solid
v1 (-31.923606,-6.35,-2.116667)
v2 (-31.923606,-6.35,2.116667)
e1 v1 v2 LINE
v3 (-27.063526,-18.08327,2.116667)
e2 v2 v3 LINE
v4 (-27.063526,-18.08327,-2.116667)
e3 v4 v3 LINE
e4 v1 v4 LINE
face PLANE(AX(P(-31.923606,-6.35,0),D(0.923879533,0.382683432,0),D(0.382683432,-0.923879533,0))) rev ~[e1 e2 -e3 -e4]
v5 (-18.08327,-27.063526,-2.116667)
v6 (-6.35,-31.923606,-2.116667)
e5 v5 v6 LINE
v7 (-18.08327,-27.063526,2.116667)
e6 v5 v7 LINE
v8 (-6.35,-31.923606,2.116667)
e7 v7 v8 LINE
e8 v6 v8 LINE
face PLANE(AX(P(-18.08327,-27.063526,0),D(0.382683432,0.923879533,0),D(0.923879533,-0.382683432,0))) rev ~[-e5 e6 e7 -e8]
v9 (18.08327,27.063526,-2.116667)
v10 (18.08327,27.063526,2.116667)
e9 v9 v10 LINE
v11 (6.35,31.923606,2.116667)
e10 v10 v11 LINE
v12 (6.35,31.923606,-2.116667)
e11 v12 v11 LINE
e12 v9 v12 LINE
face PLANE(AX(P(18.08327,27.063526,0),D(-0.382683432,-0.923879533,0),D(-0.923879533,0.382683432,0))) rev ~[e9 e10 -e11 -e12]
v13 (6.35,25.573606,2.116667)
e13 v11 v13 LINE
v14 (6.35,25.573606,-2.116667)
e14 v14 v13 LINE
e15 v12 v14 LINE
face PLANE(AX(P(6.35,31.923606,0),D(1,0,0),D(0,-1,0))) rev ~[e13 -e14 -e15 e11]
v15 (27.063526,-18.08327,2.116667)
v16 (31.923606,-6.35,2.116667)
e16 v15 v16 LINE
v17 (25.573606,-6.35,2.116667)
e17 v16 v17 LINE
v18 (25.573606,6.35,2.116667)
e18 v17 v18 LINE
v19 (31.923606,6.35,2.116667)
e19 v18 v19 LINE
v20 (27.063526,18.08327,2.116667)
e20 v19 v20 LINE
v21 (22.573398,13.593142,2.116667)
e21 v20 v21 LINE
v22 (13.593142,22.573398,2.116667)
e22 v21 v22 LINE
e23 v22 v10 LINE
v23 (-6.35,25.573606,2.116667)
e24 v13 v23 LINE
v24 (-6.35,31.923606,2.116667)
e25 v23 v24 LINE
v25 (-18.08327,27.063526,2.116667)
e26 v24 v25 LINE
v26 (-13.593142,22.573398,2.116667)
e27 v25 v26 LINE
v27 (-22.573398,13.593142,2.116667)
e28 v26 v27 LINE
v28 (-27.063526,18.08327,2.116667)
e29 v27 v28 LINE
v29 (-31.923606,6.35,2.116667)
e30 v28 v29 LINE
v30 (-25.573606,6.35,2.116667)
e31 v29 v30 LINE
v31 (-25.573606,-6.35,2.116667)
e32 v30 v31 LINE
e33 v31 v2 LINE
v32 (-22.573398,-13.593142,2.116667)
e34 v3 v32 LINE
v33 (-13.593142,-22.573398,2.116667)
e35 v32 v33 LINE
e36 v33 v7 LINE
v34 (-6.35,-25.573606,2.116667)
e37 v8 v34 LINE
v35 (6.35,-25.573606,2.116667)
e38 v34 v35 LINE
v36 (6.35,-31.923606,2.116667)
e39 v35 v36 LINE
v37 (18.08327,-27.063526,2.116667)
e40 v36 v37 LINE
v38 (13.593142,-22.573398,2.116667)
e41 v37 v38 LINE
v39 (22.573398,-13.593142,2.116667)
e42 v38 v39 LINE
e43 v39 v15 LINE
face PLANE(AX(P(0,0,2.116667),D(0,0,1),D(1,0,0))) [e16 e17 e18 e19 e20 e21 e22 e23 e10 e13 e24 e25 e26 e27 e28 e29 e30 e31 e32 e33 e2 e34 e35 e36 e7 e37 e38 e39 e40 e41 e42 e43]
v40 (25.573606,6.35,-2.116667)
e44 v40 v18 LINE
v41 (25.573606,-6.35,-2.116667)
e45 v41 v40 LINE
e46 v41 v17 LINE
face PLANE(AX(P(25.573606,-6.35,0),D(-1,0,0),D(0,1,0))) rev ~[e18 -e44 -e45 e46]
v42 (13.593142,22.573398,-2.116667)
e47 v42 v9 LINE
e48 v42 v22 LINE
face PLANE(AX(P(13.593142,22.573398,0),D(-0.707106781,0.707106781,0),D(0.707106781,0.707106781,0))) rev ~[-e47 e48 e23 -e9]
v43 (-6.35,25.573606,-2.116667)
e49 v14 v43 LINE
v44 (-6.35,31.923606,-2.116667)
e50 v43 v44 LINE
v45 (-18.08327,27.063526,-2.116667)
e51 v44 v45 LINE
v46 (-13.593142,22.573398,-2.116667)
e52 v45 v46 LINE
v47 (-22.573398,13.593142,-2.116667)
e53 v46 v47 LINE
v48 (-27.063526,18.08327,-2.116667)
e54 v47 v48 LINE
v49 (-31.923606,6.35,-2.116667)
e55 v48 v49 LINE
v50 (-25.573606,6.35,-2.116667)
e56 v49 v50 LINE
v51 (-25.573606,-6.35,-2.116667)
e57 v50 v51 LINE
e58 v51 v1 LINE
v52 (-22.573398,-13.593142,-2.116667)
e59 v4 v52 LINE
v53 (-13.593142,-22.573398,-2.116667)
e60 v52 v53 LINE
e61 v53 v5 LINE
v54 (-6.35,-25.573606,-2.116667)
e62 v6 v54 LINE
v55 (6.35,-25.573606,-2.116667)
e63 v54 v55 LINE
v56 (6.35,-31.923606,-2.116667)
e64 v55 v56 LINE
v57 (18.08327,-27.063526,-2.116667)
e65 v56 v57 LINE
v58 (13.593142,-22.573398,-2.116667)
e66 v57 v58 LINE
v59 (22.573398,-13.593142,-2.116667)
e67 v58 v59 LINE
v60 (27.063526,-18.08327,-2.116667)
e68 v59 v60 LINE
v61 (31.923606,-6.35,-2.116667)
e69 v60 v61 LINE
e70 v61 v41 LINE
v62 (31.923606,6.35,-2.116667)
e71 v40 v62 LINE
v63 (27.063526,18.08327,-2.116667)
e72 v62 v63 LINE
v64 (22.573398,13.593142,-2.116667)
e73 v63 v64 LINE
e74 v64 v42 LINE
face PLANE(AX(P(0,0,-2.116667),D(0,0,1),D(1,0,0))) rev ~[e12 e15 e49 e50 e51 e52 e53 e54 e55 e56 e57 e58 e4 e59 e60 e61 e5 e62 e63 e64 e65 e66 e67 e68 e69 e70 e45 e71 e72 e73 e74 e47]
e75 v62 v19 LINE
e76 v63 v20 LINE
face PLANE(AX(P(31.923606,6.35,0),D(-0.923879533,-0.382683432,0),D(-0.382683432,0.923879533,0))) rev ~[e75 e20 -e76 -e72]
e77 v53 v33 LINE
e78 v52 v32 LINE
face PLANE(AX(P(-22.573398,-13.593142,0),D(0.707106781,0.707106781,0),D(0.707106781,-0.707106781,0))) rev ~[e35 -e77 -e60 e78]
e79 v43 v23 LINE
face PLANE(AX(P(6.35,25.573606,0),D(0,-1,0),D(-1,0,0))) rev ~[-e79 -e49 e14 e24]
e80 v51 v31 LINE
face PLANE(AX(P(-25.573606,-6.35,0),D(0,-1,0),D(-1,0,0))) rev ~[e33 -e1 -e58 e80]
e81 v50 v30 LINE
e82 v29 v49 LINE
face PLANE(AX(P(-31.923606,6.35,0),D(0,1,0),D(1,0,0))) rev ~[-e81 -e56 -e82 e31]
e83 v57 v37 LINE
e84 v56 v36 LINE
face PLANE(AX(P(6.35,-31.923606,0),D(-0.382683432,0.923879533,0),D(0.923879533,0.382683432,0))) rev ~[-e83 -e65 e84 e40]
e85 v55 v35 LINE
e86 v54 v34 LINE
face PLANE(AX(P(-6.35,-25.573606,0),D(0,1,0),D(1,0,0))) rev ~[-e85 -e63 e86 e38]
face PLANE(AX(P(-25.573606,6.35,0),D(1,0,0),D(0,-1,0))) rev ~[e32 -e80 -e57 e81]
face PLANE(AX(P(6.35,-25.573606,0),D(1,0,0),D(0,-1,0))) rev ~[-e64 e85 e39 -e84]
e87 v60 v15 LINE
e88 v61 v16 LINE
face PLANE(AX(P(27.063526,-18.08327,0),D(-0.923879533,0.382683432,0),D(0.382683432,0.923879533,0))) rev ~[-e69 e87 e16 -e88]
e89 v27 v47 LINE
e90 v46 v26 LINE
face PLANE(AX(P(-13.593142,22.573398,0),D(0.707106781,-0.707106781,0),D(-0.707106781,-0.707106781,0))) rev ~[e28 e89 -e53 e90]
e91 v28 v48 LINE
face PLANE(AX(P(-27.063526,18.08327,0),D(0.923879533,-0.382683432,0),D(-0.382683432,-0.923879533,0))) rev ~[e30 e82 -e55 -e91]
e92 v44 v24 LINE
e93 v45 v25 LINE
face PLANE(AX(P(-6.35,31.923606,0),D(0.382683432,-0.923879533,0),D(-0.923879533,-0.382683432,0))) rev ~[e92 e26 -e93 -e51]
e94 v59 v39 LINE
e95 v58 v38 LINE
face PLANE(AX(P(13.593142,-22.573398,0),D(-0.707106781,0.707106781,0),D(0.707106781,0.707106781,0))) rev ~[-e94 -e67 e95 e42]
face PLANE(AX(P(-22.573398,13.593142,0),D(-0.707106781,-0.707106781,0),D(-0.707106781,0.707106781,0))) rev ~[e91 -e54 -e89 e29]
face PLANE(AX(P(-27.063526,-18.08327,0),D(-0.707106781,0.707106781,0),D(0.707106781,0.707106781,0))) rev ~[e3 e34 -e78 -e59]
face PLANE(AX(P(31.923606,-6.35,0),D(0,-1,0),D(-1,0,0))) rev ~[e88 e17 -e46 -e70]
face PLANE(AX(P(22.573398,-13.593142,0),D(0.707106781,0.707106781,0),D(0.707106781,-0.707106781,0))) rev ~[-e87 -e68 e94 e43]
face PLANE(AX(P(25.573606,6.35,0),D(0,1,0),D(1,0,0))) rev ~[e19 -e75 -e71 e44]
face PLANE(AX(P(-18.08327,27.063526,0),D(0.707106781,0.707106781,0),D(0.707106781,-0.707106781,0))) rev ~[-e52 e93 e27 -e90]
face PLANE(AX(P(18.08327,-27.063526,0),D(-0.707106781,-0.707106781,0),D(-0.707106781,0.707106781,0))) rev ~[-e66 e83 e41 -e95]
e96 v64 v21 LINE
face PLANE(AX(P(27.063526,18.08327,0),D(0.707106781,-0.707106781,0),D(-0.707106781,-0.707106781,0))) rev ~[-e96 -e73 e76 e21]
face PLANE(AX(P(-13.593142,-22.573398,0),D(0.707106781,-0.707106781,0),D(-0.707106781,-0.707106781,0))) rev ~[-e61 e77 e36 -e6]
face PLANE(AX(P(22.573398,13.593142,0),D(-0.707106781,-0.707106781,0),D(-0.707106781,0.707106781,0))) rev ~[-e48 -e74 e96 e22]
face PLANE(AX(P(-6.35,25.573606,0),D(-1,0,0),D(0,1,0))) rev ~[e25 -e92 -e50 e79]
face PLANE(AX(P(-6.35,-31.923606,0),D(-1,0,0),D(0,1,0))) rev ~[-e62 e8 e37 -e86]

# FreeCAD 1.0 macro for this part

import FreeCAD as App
import Part
import Sketcher
from FreeCAD import Vector
Q = App.Units.Quantity

doc = App.newDocument("Part")
body = doc.addObject("PartDesign::Body", "Body")

# Sketch on XY plane
sketch1 = body.newObject("Sketcher::SketchObject", "Sketch")
sketch1.AttachmentSupport = (doc.getObject("XY_Plane"), [""])
sketch1.MapMode = "FlatFace"
sketch1.addGeometry(Part.LineSegment(Vector(-31.923606, 6.35, 0), Vector(-25.573606, 6.35, 0)), False)
sketch1.addGeometry(Part.LineSegment(Vector(-25.573606, 6.35, 0), Vector(-25.573606, -6.35, 0)), False)
sketch1.addGeometry(Part.LineSegment(Vector(-25.573606, -6.35, 0), Vector(-31.923606, -6.35, 0)), False)
sketch1.addGeometry(Part.LineSegment(Vector(-31.923606, -6.35, 0), Vector(-27.063526, -18.08327, 0)), False)
sketch1.addGeometry(Part.LineSegment(Vector(-27.063526, -18.08327, 0), Vector(-22.573398, -13.593142, 0)), False)
sketch1.addGeometry(Part.LineSegment(Vector(-22.573398, -13.593142, 0), Vector(-13.593142, -22.573398, 0)), False)
sketch1.addGeometry(Part.LineSegment(Vector(-13.593142, -22.573398, 0), Vector(-18.08327, -27.063526, 0)), False)
sketch1.addGeometry(Part.LineSegment(Vector(-18.08327, -27.063526, 0), Vector(-6.35, -31.923606, 0)), False)
sketch1.addGeometry(Part.LineSegment(Vector(-6.35, -31.923606, 0), Vector(-6.35, -25.573606, 0)), False)
sketch1.addGeometry(Part.LineSegment(Vector(-6.35, -25.573606, 0), Vector(6.35, -25.573606, 0)), False)
sketch1.addGeometry(Part.LineSegment(Vector(6.35, -25.573606, 0), Vector(6.35, -31.923606, 0)), False)
sketch1.addGeometry(Part.LineSegment(Vector(6.35, -31.923606, 0), Vector(18.08327, -27.063526, 0)), False)
sketch1.addGeometry(Part.LineSegment(Vector(18.08327, -27.063526, 0), Vector(13.593142, -22.573398, 0)), False)
sketch1.addGeometry(Part.LineSegment(Vector(13.593142, -22.573398, 0), Vector(22.573398, -13.593142, 0)), False)
sketch1.addGeometry(Part.LineSegment(Vector(22.573398, -13.593142, 0), Vector(27.063526, -18.08327, 0)), False)
sketch1.addGeometry(Part.LineSegment(Vector(27.063526, -18.08327, 0), Vector(31.923606, -6.35, 0)), False)
sketch1.addGeometry(Part.LineSegment(Vector(31.923606, -6.35, 0), Vector(25.573606, -6.35, 0)), False)
sketch1.addGeometry(Part.LineSegment(Vector(25.573606, -6.35, 0), Vector(25.573606, 6.35, 0)), False)
sketch1.addGeometry(Part.LineSegment(Vector(25.573606, 6.35, 0), Vector(31.923606, 6.35, 0)), False)
sketch1.addGeometry(Part.LineSegment(Vector(31.923606, 6.35, 0), Vector(27.063526, 18.08327, 0)), False)
sketch1.addGeometry(Part.LineSegment(Vector(27.063526, 18.08327, 0), Vector(22.573398, 13.593142, 0)), False)
sketch1.addGeometry(Part.LineSegment(Vector(22.573398, 13.593142, 0), Vector(13.593142, 22.573398, 0)), False)
sketch1.addGeometry(Part.LineSegment(Vector(13.593142, 22.573398, 0), Vector(18.08327, 27.063526, 0)), False)
sketch1.addGeometry(Part.LineSegment(Vector(18.08327, 27.063526, 0), Vector(6.35, 31.923606, 0)), False)
sketch1.addGeometry(Part.LineSegment(Vector(6.35, 31.923606, 0), Vector(6.35, 25.573606, 0)), False)
sketch1.addGeometry(Part.LineSegment(Vector(6.35, 25.573606, 0), Vector(-6.35, 25.573606, 0)), False)
sketch1.addGeometry(Part.LineSegment(Vector(-6.35, 25.573606, 0), Vector(-6.35, 31.923606, 0)), False)
sketch1.addGeometry(Part.LineSegment(Vector(-6.35, 31.923606, 0), Vector(-18.08327, 27.063526, 0)), False)
sketch1.addGeometry(Part.LineSegment(Vector(-18.08327, 27.063526, 0), Vector(-13.593142, 22.573398, 0)), False)
sketch1.addGeometry(Part.LineSegment(Vector(-13.593142, 22.573398, 0), Vector(-22.573398, 13.593142, 0)), False)
sketch1.addGeometry(Part.LineSegment(Vector(-22.573398, 13.593142, 0), Vector(-27.063526, 18.08327, 0)), False)
sketch1.addGeometry(Part.LineSegment(Vector(-27.063526, 18.08327, 0), Vector(-31.923606, 6.35, 0)), False)
sketch1.addConstraint(Sketcher.Constraint("Coincident", 0, 2, 1, 1))
sketch1.addConstraint(Sketcher.Constraint("Coincident", 1, 2, 2, 1))
sketch1.addConstraint(Sketcher.Constraint("Coincident", 2, 2, 3, 1))
sketch1.addConstraint(Sketcher.Constraint("Coincident", 3, 2, 4, 1))
sketch1.addConstraint(Sketcher.Constraint("Coincident", 4, 2, 5, 1))
sketch1.addConstraint(Sketcher.Constraint("Coincident", 5, 2, 6, 1))
sketch1.addConstraint(Sketcher.Constraint("Coincident", 6, 2, 7, 1))
sketch1.addConstraint(Sketcher.Constraint("Coincident", 7, 2, 8, 1))
sketch1.addConstraint(Sketcher.Constraint("Coincident", 8, 2, 9, 1))
sketch1.addConstraint(Sketcher.Constraint("Coincident", 9, 2, 10, 1))
sketch1.addConstraint(Sketcher.Constraint("Coincident", 10, 2, 11, 1))
sketch1.addConstraint(Sketcher.Constraint("Coincident", 11, 2, 12, 1))
sketch1.addConstraint(Sketcher.Constraint("Coincident", 12, 2, 13, 1))
sketch1.addConstraint(Sketcher.Constraint("Coincident", 13, 2, 14, 1))
sketch1.addConstraint(Sketcher.Constraint("Coincident", 14, 2, 15, 1))
sketch1.addConstraint(Sketcher.Constraint("Coincident", 15, 2, 16, 1))
sketch1.addConstraint(Sketcher.Constraint("Coincident", 16, 2, 17, 1))
sketch1.addConstraint(Sketcher.Constraint("Coincident", 17, 2, 18, 1))
sketch1.addConstraint(Sketcher.Constraint("Coincident", 18, 2, 19, 1))
sketch1.addConstraint(Sketcher.Constraint("Coincident", 19, 2, 20, 1))
sketch1.addConstraint(Sketcher.Constraint("Coincident", 20, 2, 21, 1))
sketch1.addConstraint(Sketcher.Constraint("Coincident", 21, 2, 22, 1))
sketch1.addConstraint(Sketcher.Constraint("Coincident", 22, 2, 23, 1))
sketch1.addConstraint(Sketcher.Constraint("Coincident", 23, 2, 24, 1))
sketch1.addConstraint(Sketcher.Constraint("Coincident", 24, 2, 25, 1))
sketch1.addConstraint(Sketcher.Constraint("Coincident", 25, 2, 26, 1))
sketch1.addConstraint(Sketcher.Constraint("Coincident", 26, 2, 27, 1))
sketch1.addConstraint(Sketcher.Constraint("Coincident", 27, 2, 28, 1))
sketch1.addConstraint(Sketcher.Constraint("Coincident", 28, 2, 29, 1))
sketch1.addConstraint(Sketcher.Constraint("Coincident", 29, 2, 30, 1))
sketch1.addConstraint(Sketcher.Constraint("Coincident", 30, 2, 31, 1))
sketch1.addConstraint(Sketcher.Constraint("Coincident", 31, 2, 0, 1))
sketch1.addConstraint(Sketcher.Constraint("Horizontal", 0))
sketch1.addConstraint(Sketcher.Constraint("Vertical", 1))
sketch1.addConstraint(Sketcher.Constraint("Horizontal", 2))
sketch1.addConstraint(Sketcher.Constraint("Vertical", 8))
sketch1.addConstraint(Sketcher.Constraint("Horizontal", 9))
sketch1.addConstraint(Sketcher.Constraint("Vertical", 10))
sketch1.addConstraint(Sketcher.Constraint("Horizontal", 16))
sketch1.addConstraint(Sketcher.Constraint("Vertical", 17))
sketch1.addConstraint(Sketcher.Constraint("Horizontal", 18))
sketch1.addConstraint(Sketcher.Constraint("Vertical", 24))
sketch1.addConstraint(Sketcher.Constraint("Horizontal", 25))
sketch1.addConstraint(Sketcher.Constraint("Vertical", 26))
sketch1.addConstraint(Sketcher.Constraint("Symmetric", 0, 2, 16, 2, -1, 1))
sketch1.addConstraint(Sketcher.Constraint("Symmetric", 2, 2, 18, 2, -1, 1))
sketch1.addConstraint(Sketcher.Constraint("Symmetric", 3, 2, 19, 2, -1, 1))
sketch1.addConstraint(Sketcher.Constraint("Symmetric", 4, 2, 20, 2, -1, 1))
sketch1.addConstraint(Sketcher.Constraint("Symmetric", 5, 2, 21, 2, -1, 1))
sketch1.addConstraint(Sketcher.Constraint("Symmetric", 6, 2, 22, 2, -1, 1))
sketch1.addConstraint(Sketcher.Constraint("Symmetric", 7, 2, 23, 2, -1, 1))
sketch1.addConstraint(Sketcher.Constraint("Symmetric", 9, 2, 25, 2, -1, 1))
sketch1.addConstraint(Sketcher.Constraint("Symmetric", 11, 2, 27, 2, -1, 1))
sketch1.addConstraint(Sketcher.Constraint("Symmetric", 12, 2, 28, 2, -1, 1))
sketch1.addConstraint(Sketcher.Constraint("Symmetric", 13, 2, 29, 2, -1, 1))
sketch1.addConstraint(Sketcher.Constraint("Symmetric", 14, 2, 30, 2, -1, 1))
sketch1.addConstraint(Sketcher.Constraint("Symmetric", 7, 2, 10, 2, -2))
sketch1.addConstraint(Sketcher.Constraint("Symmetric", 6, 2, 11, 2, -2))
sketch1.addConstraint(Sketcher.Constraint("Symmetric", 5, 2, 12, 2, -2))
sketch1.addConstraint(Sketcher.Constraint("Symmetric", 4, 2, 13, 2, -2))
sketch1.addConstraint(Sketcher.Constraint("Symmetric", 3, 2, 14, 2, -2))
sketch1.addConstraint(Sketcher.Constraint("Symmetric", 2, 2, 15, 2, -2))
sketch1.addConstraint(Sketcher.Constraint("Perpendicular", 4, 5))
sketch1.addConstraint(Sketcher.Constraint("Perpendicular", 5, 6))
sketch1.addConstraint(Sketcher.Constraint("Perpendicular", 3, 11))
sketch1.addConstraint(Sketcher.Constraint("Perpendicular", 6, 12))
sketch1.addConstraint(Sketcher.Constraint("Perpendicular", 19, 27))
sketch1.addConstraint(Sketcher.Constraint("Perpendicular", 23, 31))
sketch1.addConstraint(Sketcher.Constraint("Equal", 25, 1))
sketch1.addConstraint(Sketcher.Constraint("Equal", 18, 8))
sketch1.addConstraint(Sketcher.Constraint("Equal", 3, 5))
sketch1.addConstraint(Sketcher.Constraint("Equal", 4, 6))
sketch1.addConstraint(Sketcher.Constraint("Equal", 5, 7))
sketch1.addConstraint(Sketcher.Constraint("DistanceX", 9, 1, 9, 2, Q("0.5 in")))
sketch1.addConstraint(Sketcher.Constraint("Distance", 3, Q("0.5 in")))
sketch1.addConstraint(Sketcher.Constraint("DistanceX", 0, 1, 0, 2, Q("0.25 in")))
sketch1.addConstraint(Sketcher.Constraint("Angle", 3, Q("-67.5 deg")))
sketch1.addConstraint(Sketcher.Constraint("Distance", 4, Q("0.25 in")))
pad1 = body.newObject("PartDesign::Pad", "Pad")
pad1.Profile = sketch1
pad1.Type = "TwoLengths"
pad1.Length = 2.116667
pad1.Length2 = 2.116667
pad1.Reversed = True

doc.recompute()
